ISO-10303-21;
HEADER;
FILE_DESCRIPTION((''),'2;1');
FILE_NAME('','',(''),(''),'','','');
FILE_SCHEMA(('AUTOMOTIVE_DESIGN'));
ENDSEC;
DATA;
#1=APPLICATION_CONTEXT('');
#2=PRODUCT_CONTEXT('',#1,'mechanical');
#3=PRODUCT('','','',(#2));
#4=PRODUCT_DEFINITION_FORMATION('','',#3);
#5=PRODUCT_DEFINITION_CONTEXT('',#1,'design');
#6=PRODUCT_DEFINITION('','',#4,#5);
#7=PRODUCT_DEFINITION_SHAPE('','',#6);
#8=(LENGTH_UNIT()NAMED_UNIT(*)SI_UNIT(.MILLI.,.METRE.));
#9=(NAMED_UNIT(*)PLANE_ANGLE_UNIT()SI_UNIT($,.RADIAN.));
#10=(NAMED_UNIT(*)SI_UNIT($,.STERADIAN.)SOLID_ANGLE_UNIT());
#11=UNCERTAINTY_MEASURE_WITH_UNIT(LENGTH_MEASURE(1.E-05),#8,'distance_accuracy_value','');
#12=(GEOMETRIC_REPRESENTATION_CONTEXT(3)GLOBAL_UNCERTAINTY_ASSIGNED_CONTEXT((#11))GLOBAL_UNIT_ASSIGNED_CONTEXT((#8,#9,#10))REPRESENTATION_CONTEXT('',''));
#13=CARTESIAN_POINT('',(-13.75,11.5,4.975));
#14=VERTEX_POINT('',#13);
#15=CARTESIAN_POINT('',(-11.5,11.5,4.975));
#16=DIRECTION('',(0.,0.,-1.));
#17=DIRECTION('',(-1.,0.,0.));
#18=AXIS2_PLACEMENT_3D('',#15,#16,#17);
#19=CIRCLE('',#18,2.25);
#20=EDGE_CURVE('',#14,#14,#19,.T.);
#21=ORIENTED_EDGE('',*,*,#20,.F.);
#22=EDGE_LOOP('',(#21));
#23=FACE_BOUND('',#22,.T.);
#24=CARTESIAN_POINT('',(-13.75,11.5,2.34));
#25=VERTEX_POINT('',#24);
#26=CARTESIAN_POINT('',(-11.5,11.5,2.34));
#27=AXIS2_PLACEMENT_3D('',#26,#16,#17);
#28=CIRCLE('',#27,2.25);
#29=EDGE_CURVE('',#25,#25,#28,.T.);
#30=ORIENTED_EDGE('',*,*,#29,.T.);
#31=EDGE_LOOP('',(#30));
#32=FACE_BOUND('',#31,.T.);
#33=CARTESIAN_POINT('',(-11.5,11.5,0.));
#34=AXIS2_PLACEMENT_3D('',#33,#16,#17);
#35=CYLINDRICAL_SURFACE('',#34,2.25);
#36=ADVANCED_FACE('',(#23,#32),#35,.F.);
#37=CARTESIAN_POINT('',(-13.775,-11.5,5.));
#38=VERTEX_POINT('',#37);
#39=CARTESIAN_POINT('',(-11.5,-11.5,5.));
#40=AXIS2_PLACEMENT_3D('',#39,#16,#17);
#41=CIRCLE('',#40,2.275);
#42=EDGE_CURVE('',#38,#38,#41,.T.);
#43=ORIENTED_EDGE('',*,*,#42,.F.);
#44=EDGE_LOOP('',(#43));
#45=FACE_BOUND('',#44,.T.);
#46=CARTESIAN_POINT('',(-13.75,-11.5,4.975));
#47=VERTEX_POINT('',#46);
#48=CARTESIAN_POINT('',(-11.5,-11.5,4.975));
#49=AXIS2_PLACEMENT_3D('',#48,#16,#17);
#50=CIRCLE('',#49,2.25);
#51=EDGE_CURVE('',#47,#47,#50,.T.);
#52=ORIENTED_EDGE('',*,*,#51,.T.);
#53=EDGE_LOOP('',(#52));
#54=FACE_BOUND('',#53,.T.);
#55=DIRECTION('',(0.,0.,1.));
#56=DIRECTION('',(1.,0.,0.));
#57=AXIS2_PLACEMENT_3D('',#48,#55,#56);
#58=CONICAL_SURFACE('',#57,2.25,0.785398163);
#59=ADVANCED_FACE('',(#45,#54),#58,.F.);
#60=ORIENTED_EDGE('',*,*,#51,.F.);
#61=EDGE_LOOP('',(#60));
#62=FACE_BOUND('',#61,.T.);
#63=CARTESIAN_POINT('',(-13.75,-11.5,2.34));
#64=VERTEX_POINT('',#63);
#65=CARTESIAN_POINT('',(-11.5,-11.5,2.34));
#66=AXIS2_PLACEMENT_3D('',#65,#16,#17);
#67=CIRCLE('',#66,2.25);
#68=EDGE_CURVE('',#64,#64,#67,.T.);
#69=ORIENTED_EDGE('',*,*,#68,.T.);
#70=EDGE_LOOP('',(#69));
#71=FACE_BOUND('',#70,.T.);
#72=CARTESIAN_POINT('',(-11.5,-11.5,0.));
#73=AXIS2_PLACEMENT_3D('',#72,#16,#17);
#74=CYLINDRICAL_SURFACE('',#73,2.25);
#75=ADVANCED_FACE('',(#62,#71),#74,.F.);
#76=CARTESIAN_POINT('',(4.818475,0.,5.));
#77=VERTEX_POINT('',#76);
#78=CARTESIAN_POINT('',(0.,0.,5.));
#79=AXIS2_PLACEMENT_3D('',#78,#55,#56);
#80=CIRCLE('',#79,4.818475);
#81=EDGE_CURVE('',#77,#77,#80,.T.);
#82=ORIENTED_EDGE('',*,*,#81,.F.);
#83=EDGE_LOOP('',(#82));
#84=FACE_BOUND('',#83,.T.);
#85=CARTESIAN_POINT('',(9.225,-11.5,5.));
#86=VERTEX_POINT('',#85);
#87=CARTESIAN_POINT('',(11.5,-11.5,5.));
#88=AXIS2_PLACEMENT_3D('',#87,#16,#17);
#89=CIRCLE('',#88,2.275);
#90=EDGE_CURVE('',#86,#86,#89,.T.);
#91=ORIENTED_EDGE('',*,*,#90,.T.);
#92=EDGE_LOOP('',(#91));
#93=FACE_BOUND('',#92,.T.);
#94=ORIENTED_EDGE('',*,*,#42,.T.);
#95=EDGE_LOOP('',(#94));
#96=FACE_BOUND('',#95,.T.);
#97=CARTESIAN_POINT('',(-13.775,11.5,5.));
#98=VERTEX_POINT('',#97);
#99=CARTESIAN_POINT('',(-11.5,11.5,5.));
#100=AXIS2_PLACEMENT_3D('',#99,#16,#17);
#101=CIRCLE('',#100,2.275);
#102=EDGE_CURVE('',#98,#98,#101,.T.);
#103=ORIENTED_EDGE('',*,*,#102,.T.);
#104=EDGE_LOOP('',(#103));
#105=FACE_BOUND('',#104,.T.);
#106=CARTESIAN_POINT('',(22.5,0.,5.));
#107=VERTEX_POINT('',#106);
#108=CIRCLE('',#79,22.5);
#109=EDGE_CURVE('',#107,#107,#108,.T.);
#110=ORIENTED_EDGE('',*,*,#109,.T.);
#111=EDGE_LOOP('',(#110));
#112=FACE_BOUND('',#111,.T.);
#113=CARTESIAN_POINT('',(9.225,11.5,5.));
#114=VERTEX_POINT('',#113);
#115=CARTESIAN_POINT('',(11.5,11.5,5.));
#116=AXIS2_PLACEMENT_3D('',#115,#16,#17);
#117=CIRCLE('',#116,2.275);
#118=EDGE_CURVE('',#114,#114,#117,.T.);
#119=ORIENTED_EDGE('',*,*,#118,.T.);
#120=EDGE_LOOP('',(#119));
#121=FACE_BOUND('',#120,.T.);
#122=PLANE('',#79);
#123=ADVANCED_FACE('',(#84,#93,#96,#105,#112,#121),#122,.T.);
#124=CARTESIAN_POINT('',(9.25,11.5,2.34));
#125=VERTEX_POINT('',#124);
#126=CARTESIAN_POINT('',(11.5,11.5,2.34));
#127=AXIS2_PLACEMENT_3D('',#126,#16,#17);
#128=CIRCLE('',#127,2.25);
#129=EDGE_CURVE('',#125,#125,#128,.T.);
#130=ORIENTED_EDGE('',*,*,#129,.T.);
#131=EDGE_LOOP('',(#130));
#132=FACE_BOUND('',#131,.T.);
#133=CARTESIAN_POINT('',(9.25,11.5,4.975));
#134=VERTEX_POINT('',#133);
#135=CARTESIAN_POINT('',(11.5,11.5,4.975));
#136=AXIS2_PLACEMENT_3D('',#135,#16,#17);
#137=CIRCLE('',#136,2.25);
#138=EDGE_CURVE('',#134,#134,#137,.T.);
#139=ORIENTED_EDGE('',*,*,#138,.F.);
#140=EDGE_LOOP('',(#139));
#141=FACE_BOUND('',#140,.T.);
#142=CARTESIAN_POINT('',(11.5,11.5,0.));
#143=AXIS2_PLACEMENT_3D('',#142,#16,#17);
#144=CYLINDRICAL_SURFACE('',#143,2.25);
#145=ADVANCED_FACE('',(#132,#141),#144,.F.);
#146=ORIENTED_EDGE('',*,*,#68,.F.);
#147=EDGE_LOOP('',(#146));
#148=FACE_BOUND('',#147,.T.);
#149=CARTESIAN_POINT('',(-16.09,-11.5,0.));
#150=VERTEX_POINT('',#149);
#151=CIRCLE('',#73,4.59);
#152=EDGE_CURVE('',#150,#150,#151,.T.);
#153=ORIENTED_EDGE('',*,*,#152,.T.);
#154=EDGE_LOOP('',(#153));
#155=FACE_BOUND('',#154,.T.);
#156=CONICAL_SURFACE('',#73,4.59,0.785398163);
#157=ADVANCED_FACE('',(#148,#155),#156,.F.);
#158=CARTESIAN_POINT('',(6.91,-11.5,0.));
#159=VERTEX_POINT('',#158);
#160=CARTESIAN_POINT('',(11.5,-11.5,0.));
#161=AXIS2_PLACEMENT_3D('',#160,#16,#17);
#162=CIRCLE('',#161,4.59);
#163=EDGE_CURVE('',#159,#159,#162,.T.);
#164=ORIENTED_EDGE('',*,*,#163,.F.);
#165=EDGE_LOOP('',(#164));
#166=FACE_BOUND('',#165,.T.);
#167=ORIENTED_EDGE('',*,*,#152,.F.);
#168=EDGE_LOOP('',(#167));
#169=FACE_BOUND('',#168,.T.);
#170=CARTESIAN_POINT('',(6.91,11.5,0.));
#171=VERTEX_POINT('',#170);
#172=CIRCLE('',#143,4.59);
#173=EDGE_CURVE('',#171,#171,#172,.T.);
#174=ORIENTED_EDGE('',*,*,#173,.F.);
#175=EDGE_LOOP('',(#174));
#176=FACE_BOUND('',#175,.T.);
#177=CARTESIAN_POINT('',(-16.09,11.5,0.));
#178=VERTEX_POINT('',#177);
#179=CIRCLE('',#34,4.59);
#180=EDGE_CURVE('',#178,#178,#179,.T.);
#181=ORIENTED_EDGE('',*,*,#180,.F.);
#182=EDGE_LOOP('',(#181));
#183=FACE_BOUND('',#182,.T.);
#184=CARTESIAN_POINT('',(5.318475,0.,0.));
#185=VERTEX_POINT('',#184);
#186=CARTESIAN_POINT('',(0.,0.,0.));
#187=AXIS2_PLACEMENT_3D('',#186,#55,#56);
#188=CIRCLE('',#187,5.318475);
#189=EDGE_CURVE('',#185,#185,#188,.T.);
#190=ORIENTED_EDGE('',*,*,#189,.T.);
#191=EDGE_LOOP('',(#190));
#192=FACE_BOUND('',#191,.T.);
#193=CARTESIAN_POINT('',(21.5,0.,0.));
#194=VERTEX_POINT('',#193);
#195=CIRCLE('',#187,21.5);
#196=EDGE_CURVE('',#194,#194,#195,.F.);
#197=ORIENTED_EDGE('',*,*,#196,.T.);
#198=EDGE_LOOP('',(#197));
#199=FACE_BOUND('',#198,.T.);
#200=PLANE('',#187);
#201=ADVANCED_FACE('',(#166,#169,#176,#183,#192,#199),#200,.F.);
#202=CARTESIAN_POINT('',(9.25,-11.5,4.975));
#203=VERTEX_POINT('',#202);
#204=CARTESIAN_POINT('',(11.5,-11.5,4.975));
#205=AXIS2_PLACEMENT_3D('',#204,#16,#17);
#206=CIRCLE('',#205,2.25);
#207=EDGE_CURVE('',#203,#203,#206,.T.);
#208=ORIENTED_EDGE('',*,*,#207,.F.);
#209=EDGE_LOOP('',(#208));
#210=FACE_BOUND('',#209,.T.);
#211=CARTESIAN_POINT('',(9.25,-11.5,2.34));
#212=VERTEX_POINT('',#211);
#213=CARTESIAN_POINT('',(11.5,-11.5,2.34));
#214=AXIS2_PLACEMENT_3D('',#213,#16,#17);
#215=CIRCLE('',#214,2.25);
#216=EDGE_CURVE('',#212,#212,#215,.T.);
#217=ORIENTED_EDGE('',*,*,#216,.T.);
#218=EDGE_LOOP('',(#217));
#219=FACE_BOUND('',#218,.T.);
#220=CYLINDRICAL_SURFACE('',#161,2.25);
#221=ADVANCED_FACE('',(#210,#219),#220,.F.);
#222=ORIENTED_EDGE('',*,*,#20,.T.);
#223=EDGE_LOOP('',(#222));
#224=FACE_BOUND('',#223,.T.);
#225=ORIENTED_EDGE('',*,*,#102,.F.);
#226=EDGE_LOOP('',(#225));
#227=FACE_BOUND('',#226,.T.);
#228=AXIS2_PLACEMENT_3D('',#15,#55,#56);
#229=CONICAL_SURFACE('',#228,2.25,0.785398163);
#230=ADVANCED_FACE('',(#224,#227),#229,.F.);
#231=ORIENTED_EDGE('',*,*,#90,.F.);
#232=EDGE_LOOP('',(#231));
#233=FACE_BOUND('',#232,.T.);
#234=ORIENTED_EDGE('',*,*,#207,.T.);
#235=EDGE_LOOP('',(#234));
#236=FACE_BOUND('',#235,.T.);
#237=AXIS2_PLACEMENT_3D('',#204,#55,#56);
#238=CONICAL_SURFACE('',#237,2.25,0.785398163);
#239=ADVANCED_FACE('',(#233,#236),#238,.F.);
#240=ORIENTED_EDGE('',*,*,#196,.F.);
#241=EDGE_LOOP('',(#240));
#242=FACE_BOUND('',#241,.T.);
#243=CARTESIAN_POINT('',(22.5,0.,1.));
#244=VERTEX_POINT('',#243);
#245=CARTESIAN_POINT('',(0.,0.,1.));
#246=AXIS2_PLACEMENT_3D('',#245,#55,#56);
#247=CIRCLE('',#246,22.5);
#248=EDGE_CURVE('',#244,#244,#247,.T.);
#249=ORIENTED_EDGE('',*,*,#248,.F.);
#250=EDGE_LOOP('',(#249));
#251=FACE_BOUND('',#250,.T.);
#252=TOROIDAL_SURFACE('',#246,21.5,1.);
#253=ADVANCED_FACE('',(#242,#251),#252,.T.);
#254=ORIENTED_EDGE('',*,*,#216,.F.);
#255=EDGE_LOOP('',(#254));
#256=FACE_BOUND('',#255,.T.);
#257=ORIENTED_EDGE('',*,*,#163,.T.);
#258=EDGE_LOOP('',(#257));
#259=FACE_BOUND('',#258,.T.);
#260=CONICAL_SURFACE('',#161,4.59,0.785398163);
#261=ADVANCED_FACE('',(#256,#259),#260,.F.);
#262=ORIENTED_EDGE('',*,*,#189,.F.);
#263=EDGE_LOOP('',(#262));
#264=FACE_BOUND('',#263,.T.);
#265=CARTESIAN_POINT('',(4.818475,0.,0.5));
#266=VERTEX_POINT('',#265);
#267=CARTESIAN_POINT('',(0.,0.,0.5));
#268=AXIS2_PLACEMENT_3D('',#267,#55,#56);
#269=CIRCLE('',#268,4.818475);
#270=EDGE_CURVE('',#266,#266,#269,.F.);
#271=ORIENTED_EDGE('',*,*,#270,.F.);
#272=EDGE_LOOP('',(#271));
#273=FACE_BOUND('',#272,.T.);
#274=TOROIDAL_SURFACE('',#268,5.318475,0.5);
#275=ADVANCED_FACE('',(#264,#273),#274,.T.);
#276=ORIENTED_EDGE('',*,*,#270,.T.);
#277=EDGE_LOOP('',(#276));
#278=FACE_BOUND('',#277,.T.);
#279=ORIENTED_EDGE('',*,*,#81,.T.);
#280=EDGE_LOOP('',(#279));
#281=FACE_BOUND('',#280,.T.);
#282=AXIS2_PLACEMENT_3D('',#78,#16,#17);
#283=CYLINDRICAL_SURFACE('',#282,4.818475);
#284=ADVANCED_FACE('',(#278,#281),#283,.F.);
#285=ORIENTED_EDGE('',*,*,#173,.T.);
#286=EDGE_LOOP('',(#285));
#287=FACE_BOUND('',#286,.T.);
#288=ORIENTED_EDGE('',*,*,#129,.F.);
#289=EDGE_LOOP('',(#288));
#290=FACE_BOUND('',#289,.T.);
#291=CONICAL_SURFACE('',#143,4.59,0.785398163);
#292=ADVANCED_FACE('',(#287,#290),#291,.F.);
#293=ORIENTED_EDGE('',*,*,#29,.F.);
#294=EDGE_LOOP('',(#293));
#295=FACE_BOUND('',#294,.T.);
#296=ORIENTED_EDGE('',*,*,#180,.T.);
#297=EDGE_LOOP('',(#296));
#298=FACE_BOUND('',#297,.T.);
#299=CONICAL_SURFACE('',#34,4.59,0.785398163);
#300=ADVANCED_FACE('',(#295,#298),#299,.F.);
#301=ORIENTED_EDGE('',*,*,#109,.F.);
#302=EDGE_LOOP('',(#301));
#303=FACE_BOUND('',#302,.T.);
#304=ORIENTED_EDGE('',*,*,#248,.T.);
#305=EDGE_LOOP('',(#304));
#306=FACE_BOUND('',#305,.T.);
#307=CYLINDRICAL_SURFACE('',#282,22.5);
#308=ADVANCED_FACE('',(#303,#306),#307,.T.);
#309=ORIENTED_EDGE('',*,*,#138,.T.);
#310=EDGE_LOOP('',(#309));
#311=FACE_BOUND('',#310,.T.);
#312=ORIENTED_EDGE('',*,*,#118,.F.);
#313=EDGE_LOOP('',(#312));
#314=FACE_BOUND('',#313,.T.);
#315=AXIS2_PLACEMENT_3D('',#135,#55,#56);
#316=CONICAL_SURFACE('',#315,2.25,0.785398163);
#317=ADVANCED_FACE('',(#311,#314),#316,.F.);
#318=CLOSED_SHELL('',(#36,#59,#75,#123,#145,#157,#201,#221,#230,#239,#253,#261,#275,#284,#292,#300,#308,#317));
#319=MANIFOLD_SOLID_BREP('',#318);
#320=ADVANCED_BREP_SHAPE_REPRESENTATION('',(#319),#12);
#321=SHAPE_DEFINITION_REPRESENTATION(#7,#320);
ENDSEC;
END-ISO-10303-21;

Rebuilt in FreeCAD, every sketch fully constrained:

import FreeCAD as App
import Part
import Sketcher
Q = App.Units.Quantity


def edges_at(feature, points):
    """Names of the edges that pass closest to the given points."""
    edges = feature.Shape.Edges
    near = lambda p: min(range(len(edges)), key=lambda i: edges[i].distToShape(Part.Vertex(*p))[0])
    return sorted({f"Edge{near(p) + 1}" for p in points})


def add_polygon(sketch, points):
    """Adds a closed chain of lines whose ends are joined by coincident constraints."""
    first, n = sketch.GeometryCount, len(points)
    for a, b in zip(points, points[1:] + points[:1]):
        sketch.addGeometry(Part.LineSegment(App.Vector(*a, 0), App.Vector(*b, 0)), False)
    for i in range(n):
        sketch.addConstraint(Sketcher.Constraint("Coincident", first + i, 2, first + (i + 1) % n, 1))

doc = App.newDocument("Part")
body = doc.addObject("PartDesign::Body", "Body")

# Sketch on XY plane
sketch1 = doc.addObject("Sketcher::SketchObject", "Sketch")
body.addObject(sketch1)
sketch1.AttachmentSupport = (doc.XY_Plane, [""])
sketch1.MapMode = "FlatFace"
sketch1.addGeometry([
    Part.Circle(App.Vector(0, 0, 0), App.Vector(0, 0, 1), 22.5),  # 0
    Part.Circle(App.Vector(-11.5, -11.5, 0), App.Vector(0, 0, 1), 2),  # 1
    Part.Circle(App.Vector(11.5, -11.5, 0), App.Vector(0, 0, 1), 2),  # 2
    Part.Circle(App.Vector(-11.5, 11.5, 0), App.Vector(0, 0, 1), 2),  # 3
    Part.Circle(App.Vector(0, 0, 0), App.Vector(0, 0, 1), 4.818475),  # 4
    Part.Circle(App.Vector(11.5, 11.5, 0), App.Vector(0, 0, 1), 2),  # 5
], False)
sketch1.addConstraint([
    Sketcher.Constraint("Coincident", 0, 3, -1, 1),
    Sketcher.Constraint("Coincident", 4, 3, -1, 1),
    Sketcher.Constraint("Equal", 1, 2),
    Sketcher.Constraint("Equal", 2, 3),
    Sketcher.Constraint("Equal", 3, 5),
    Sketcher.Constraint("Symmetric", 2, 3, 3, 3, -1, 1),
    Sketcher.Constraint("Symmetric", 1, 3, 5, 3, -1, 1),
    Sketcher.Constraint("Symmetric", 1, 3, 2, 3, -2),
    Sketcher.Constraint("Diameter", 0, Q("45 mm")),
    Sketcher.Constraint("Diameter", 1, Q("4 mm")),
    Sketcher.Constraint("DistanceX", 1, 3, 2, 3, Q("23 mm")),
    Sketcher.Constraint("DistanceY", 1, 3, 3, 3, Q("23 mm")),
    Sketcher.Constraint("Diameter", 4, Q("9.63695 mm")),
])
pad1 = doc.addObject("PartDesign::Pad", "Pad")
body.addObject(pad1)
pad1.Profile = sketch1
pad1.Length = 5
doc.recompute()

fillet = doc.addObject("PartDesign::Fillet", "Fillet")
body.addObject(fillet)
fillet.Base = (pad1, edges_at(pad1, [(-22.5, 0, 0)]))
fillet.Radius = 1
doc.recompute()

fillet2 = doc.addObject("PartDesign::Fillet", "Fillet001")
body.addObject(fillet2)
fillet2.Base = (fillet, edges_at(fillet, [(-4.818, 0, 0)]))
fillet2.Radius = 0.5

# Sketch on YZ plane
sketch2 = doc.addObject("Sketcher::SketchObject", "Sketch001")
body.addObject(sketch2)
sketch2.AttachmentSupport = (doc.YZ_Plane, [""])
sketch2.MapMode = "FlatFace"
sketch2.AttachmentOffset = App.Placement(App.Vector(0, 0, 11.5), App.Rotation())
add_polygon(sketch2, [(11.5, 5), (11.5, 0), (16.09, 0), (13.75, 2.34), (13.75, 4.975), (13.775, 5)])  # lines 0-5
sketch2.addGeometry(Part.LineSegment(App.Vector(11.5, 0, 0), App.Vector(11.5, 5, 0)), True)  # axis
sketch2.addConstraint([
    Sketcher.Constraint("Vertical", 0),
    Sketcher.Constraint("Horizontal", 1),
    Sketcher.Constraint("Vertical", 3),
    Sketcher.Constraint("Horizontal", 5),
    Sketcher.Constraint("Vertical", 6),
    Sketcher.Constraint("Coincident", 6, 1, 0, 2),
    Sketcher.Constraint("PointOnObject", 0, 2, -1),
    Sketcher.Constraint("Perpendicular", 2, 4),
    Sketcher.Constraint("Horizontal", 4, 2, 6, 2),
    Sketcher.Constraint("DistanceY", 0, 2, 0, 1, Q("5 mm")),
    Sketcher.Constraint("Angle", 2, Q("135 deg")),
    Sketcher.Constraint("DistanceX", 1, 1, 1, 2, Q("4.59 mm")),
    Sketcher.Constraint("DistanceX", -1, 1, 0, 2, Q("11.5 mm")),
    Sketcher.Constraint("DistanceX", 5, 2, 5, 1, Q("2.275 mm")),
    Sketcher.Constraint("DistanceY", 3, 1, 3, 2, Q("2.635 mm")),
])
groove = doc.addObject("PartDesign::Groove", "Groove")
body.addObject(groove)
groove.Profile = sketch2
groove.ReferenceAxis = (sketch2, ["Axis0"])
groove.Angle = 360
doc.recompute()

linearpattern = doc.addObject("PartDesign::LinearPattern", "LinearPattern")
body.addObject(linearpattern)
linearpattern.Originals = [groove]
linearpattern.Direction = (doc.X_Axis, [""])
linearpattern.Mode = "offset"
linearpattern.Offset = 23
linearpattern.Occurrences = 2
linearpattern.Reversed = True
body.Tip = linearpattern
doc.recompute()

linearpattern2 = doc.addObject("PartDesign::LinearPattern", "LinearPattern001")
body.addObject(linearpattern2)
linearpattern2.Originals = [groove]
linearpattern2.Direction = (doc.Y_Axis, [""])
linearpattern2.Mode = "offset"
linearpattern2.Offset = 23
linearpattern2.Occurrences = 2
linearpattern2.Reversed = True
body.Tip = linearpattern2
doc.recompute()

datumline = doc.addObject("PartDesign::Line", "DatumLine")
body.addObject(datumline)
datumline.Placement = App.Placement(App.Vector(0, 0, 0), App.Rotation(App.Vector(0, 0, 1), App.Vector(-0.707106781, -0.707106781, 0)))
linearpattern3 = doc.addObject("PartDesign::LinearPattern", "LinearPattern002")
body.addObject(linearpattern3)
linearpattern3.Originals = [groove]
linearpattern3.Direction = (datumline, [""])
linearpattern3.Mode = "offset"
linearpattern3.Offset = 32.526912
linearpattern3.Occurrences = 2
body.Tip = linearpattern3

doc.recompute()
